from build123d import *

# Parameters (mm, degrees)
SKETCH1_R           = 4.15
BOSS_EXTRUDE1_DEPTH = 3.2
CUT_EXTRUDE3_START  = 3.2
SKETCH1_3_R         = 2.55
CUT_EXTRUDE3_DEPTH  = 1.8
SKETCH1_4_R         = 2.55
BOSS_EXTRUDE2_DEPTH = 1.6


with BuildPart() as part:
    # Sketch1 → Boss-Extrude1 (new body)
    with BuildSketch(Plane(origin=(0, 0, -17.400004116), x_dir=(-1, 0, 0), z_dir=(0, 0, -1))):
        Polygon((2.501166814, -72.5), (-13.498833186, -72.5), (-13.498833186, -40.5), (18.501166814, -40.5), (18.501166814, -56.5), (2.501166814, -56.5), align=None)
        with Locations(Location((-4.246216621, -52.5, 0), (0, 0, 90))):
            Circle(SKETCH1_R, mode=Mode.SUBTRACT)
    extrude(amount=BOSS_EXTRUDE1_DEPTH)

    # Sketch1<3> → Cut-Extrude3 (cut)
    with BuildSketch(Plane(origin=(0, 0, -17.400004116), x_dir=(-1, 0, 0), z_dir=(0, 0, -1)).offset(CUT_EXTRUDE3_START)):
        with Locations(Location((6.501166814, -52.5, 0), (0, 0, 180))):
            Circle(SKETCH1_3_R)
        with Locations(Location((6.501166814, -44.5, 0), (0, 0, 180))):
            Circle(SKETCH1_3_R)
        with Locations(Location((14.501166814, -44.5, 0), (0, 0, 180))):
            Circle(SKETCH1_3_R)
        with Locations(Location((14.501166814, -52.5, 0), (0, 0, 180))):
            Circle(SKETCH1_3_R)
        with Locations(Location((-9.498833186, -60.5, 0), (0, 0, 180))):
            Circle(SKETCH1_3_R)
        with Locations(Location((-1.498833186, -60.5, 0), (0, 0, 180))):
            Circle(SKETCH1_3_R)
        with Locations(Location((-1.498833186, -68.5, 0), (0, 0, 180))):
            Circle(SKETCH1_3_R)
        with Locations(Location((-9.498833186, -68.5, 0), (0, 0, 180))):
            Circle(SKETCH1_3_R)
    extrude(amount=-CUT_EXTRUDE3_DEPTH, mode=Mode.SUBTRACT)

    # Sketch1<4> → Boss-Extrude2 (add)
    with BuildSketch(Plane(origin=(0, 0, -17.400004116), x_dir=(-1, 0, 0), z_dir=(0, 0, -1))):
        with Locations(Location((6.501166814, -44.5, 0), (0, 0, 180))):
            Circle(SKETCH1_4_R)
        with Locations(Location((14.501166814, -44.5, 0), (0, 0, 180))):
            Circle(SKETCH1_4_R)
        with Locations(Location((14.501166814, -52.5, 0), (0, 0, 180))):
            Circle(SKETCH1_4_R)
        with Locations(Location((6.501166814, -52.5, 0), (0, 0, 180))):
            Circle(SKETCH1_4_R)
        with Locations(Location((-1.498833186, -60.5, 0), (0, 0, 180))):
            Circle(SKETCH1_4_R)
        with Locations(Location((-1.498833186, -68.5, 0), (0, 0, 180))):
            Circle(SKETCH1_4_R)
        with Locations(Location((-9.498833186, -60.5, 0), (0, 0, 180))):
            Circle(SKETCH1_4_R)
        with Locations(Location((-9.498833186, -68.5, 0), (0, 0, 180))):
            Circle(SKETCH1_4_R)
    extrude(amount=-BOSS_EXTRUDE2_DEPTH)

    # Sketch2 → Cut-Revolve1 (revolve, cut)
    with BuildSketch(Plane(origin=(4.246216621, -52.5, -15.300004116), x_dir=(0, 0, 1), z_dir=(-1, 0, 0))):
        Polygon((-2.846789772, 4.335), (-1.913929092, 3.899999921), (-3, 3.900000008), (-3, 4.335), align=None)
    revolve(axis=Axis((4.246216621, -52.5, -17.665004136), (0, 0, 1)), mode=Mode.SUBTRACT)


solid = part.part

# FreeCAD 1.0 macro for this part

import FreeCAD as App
import Part
import Sketcher
from FreeCAD import Vector
Q = App.Units.Quantity


def add_polygon(sketch, points):
    """Adds a closed chain of lines whose ends are joined by coincident constraints."""
    first, n = sketch.GeometryCount, len(points)
    for a, b in zip(points, points[1:] + points[:1]):
        sketch.addGeometry(Part.LineSegment(App.Vector(*a, 0), App.Vector(*b, 0)), False)
    for i in range(n):
        sketch.addConstraint(Sketcher.Constraint("Coincident", first + i, 2, first + (i + 1) % n, 1))

doc = App.newDocument("Part")
body = doc.addObject("PartDesign::Body", "Body")

# Sketch on XY plane
sketch1 = body.newObject("Sketcher::SketchObject", "Sketch")
sketch1.AttachmentSupport = (doc.getObject("XY_Plane"), [""])
sketch1.MapMode = "FlatFace"
sketch1.AttachmentOffset = App.Placement(Vector(0, 0, -17.400004), App.Rotation())
add_polygon(sketch1, [(13.5, -72.5), (-2.5, -72.5), (-2.5, -56.5), (-18.5, -56.5), (-18.5, -40.5), (13.5, -40.5)])  # lines 0-5
sketch1.addGeometry(Part.Circle(Vector(4.2, -52.5, 0), Vector(0, 0, 1), 4.2), False)  # 6
sketch1.addConstraint(Sketcher.Constraint("Horizontal", 0))
sketch1.addConstraint(Sketcher.Constraint("Vertical", 1))
sketch1.addConstraint(Sketcher.Constraint("Horizontal", 2))
sketch1.addConstraint(Sketcher.Constraint("Vertical", 3))
sketch1.addConstraint(Sketcher.Constraint("Horizontal", 4))
sketch1.addConstraint(Sketcher.Constraint("Vertical", 5))
sketch1.addConstraint(Sketcher.Constraint("Equal", 0, 2))
sketch1.addConstraint(Sketcher.Constraint("Equal", 2, 1))
sketch1.addConstraint(Sketcher.Constraint("Equal", 1, 3))
sketch1.addConstraint(Sketcher.Constraint("Diameter", 6, 8.3))
sketch1.addConstraint(Sketcher.Constraint("DistanceX", 0, 2, 0, 1, 16.0))
sketch1.addConstraint(Sketcher.Constraint("DistanceY", 0, 2, 6, 3, 20.0))
sketch1.addConstraint(Sketcher.Constraint("DistanceY", 6, 3, -1, 1, 52.5))
sketch1.addConstraint(Sketcher.Constraint("DistanceX", -1, 1, 6, 3, 4.246217))
sketch1.addConstraint(Sketcher.Constraint("DistanceX", 0, 2, -1, 1, 2.501167))
pad1 = body.newObject("PartDesign::Pad", "Pad")
pad1.Profile = sketch1
pad1.Length = 3.2
pad1.Reversed = True

# Sketch on XY plane
sketch2 = body.newObject("Sketcher::SketchObject", "Sketch001")
sketch2.AttachmentSupport = (doc.getObject("XY_Plane"), [""])
sketch2.MapMode = "FlatFace"
sketch2.AttachmentOffset = App.Placement(Vector(0, 0, -20.600004), App.Rotation())
sketch2.addGeometry(Part.Circle(Vector(-6.5, -52.5, 0), Vector(0, 0, 1), 2.5), False)
sketch2.addGeometry(Part.Circle(Vector(-6.5, -44.5, 0), Vector(0, 0, 1), 2.5), False)
sketch2.addGeometry(Part.Circle(Vector(-14.5, -44.5, 0), Vector(0, 0, 1), 2.5), False)
sketch2.addGeometry(Part.Circle(Vector(-14.5, -52.5, 0), Vector(0, 0, 1), 2.5), False)
sketch2.addGeometry(Part.Circle(Vector(9.5, -60.5, 0), Vector(0, 0, 1), 2.5), False)
sketch2.addGeometry(Part.Circle(Vector(1.5, -60.5, 0), Vector(0, 0, 1), 2.5), False)
sketch2.addGeometry(Part.Circle(Vector(1.5, -68.5, 0), Vector(0, 0, 1), 2.5), False)
sketch2.addGeometry(Part.Circle(Vector(9.5, -68.5, 0), Vector(0, 0, 1), 2.5), False)
sketch2.addConstraint(Sketcher.Constraint("Equal", 0, 1))
sketch2.addConstraint(Sketcher.Constraint("Equal", 1, 2))
sketch2.addConstraint(Sketcher.Constraint("Equal", 2, 3))
sketch2.addConstraint(Sketcher.Constraint("Equal", 3, 4))
sketch2.addConstraint(Sketcher.Constraint("Equal", 4, 5))
sketch2.addConstraint(Sketcher.Constraint("Equal", 5, 6))
sketch2.addConstraint(Sketcher.Constraint("Equal", 6, 7))
sketch2.addConstraint(Sketcher.Constraint("Horizontal", 1, 3, 2, 3))
sketch2.addConstraint(Sketcher.Constraint("Horizontal", 0, 3, 3, 3))
sketch2.addConstraint(Sketcher.Constraint("Horizontal", 4, 3, 5, 3))
sketch2.addConstraint(Sketcher.Constraint("Horizontal", 6, 3, 7, 3))
sketch2.addConstraint(Sketcher.Constraint("Vertical", 0, 3, 1, 3))
sketch2.addConstraint(Sketcher.Constraint("Vertical", 2, 3, 3, 3))
sketch2.addConstraint(Sketcher.Constraint("Vertical", 5, 3, 6, 3))
sketch2.addConstraint(Sketcher.Constraint("Vertical", 4, 3, 7, 3))
sketch2.addConstraint(Sketcher.Constraint("Diameter", 0, 5.1))
sketch2.addConstraint(Sketcher.Constraint("DistanceY", 0, 3, 1, 3, 8.0))
sketch2.addConstraint(Sketcher.Constraint("DistanceX", 2, 3, 1, 3, 8.0))
sketch2.addConstraint(Sketcher.Constraint("DistanceX", 0, 3, 4, 3, 16.0))
sketch2.addConstraint(Sketcher.Constraint("DistanceY", 4, 3, 0, 3, 8.0))
sketch2.addConstraint(Sketcher.Constraint("DistanceX", 5, 3, 4, 3, 8.0))
sketch2.addConstraint(Sketcher.Constraint("DistanceY", 6, 3, 5, 3, 8.0))
sketch2.addConstraint(Sketcher.Constraint("DistanceY", 0, 3, -1, 1, 52.5))
sketch2.addConstraint(Sketcher.Constraint("DistanceX", 0, 3, -1, 1, 6.501167))
pocket1 = body.newObject("PartDesign::Pocket", "Pocket")
pocket1.Profile = sketch2
pocket1.Length = 1.8
pocket1.Reversed = True

# Sketch on XY plane
sketch3 = body.newObject("Sketcher::SketchObject", "Sketch002")
sketch3.AttachmentSupport = (doc.getObject("XY_Plane"), [""])
sketch3.MapMode = "FlatFace"
sketch3.AttachmentOffset = App.Placement(Vector(0, 0, -17.400004), App.Rotation())
sketch3.addGeometry(Part.Circle(Vector(-6.5, -44.5, 0), Vector(0, 0, 1), 2.5), False)
sketch3.addGeometry(Part.Circle(Vector(-14.5, -44.5, 0), Vector(0, 0, 1), 2.5), False)
sketch3.addGeometry(Part.Circle(Vector(-14.5, -52.5, 0), Vector(0, 0, 1), 2.5), False)
sketch3.addGeometry(Part.Circle(Vector(-6.5, -52.5, 0), Vector(0, 0, 1), 2.5), False)
sketch3.addGeometry(Part.Circle(Vector(1.5, -60.5, 0), Vector(0, 0, 1), 2.5), False)
sketch3.addGeometry(Part.Circle(Vector(1.5, -68.5, 0), Vector(0, 0, 1), 2.5), False)
sketch3.addGeometry(Part.Circle(Vector(9.5, -60.5, 0), Vector(0, 0, 1), 2.5), False)
sketch3.addGeometry(Part.Circle(Vector(9.5, -68.5, 0), Vector(0, 0, 1), 2.5), False)
sketch3.addConstraint(Sketcher.Constraint("Equal", 0, 1))
sketch3.addConstraint(Sketcher.Constraint("Equal", 1, 2))
sketch3.addConstraint(Sketcher.Constraint("Equal", 2, 3))
sketch3.addConstraint(Sketcher.Constraint("Equal", 3, 4))
sketch3.addConstraint(Sketcher.Constraint("Equal", 4, 5))
sketch3.addConstraint(Sketcher.Constraint("Equal", 5, 6))
sketch3.addConstraint(Sketcher.Constraint("Equal", 6, 7))
sketch3.addConstraint(Sketcher.Constraint("Horizontal", 0, 3, 1, 3))
sketch3.addConstraint(Sketcher.Constraint("Horizontal", 2, 3, 3, 3))
sketch3.addConstraint(Sketcher.Constraint("Horizontal", 4, 3, 6, 3))
sketch3.addConstraint(Sketcher.Constraint("Horizontal", 5, 3, 7, 3))
sketch3.addConstraint(Sketcher.Constraint("Vertical", 1, 3, 2, 3))
sketch3.addConstraint(Sketcher.Constraint("Vertical", 0, 3, 3, 3))
sketch3.addConstraint(Sketcher.Constraint("Vertical", 4, 3, 5, 3))
sketch3.addConstraint(Sketcher.Constraint("Vertical", 6, 3, 7, 3))
sketch3.addConstraint(Sketcher.Constraint("Diameter", 0, 5.1))
sketch3.addConstraint(Sketcher.Constraint("DistanceX", 1, 3, 0, 3, 8.0))
sketch3.addConstraint(Sketcher.Constraint("DistanceY", 2, 3, 1, 3, 8.0))
sketch3.addConstraint(Sketcher.Constraint("DistanceX", 3, 3, 4, 3, 8.0))
sketch3.addConstraint(Sketcher.Constraint("DistanceY", 4, 3, 3, 3, 8.0))
sketch3.addConstraint(Sketcher.Constraint("DistanceY", 5, 3, 4, 3, 8.0))
sketch3.addConstraint(Sketcher.Constraint("DistanceX", 4, 3, 6, 3, 8.0))
sketch3.addConstraint(Sketcher.Constraint("DistanceY", 0, 3, -1, 1, 44.5))
sketch3.addConstraint(Sketcher.Constraint("DistanceX", 0, 3, -1, 1, 6.501167))
pad2 = body.newObject("PartDesign::Pad", "Pad001")
pad2.Profile = sketch3
pad2.Length = 1.6

# Sketch on YZ plane
sketch4 = body.newObject("Sketcher::SketchObject", "Sketch003")
sketch4.AttachmentSupport = (doc.getObject("YZ_Plane"), [""])
sketch4.MapMode = "FlatFace"
sketch4.AttachmentOffset = App.Placement(Vector(0, 0, 4.246217), App.Rotation())
add_polygon(sketch4, [(-48.6, -17.21), (-48.16, -18.15), (-48.16, -18.3), (-48.6, -18.3)])  # lines 0-3
sketch4.addGeometry(Part.LineSegment(Vector(-52.5, -18.3, 0), Vector(-52.5, -17.21, 0)), True)  # axis
sketch4.addConstraint(Sketcher.Constraint("Vertical", 1))
sketch4.addConstraint(Sketcher.Constraint("Horizontal", 2))
sketch4.addConstraint(Sketcher.Constraint("Vertical", 3))
sketch4.addConstraint(Sketcher.Constraint("Vertical", 4))
sketch4.addConstraint(Sketcher.Constraint("Horizontal", 2, 2, 4, 1))
sketch4.addConstraint(Sketcher.Constraint("Horizontal", 3, 2, 4, 2))
sketch4.addConstraint(Sketcher.Constraint("Angle", 0, Q("-65 deg")))
sketch4.addConstraint(Sketcher.Constraint("DistanceX", 2, 2, -1, 1, 48.6))
sketch4.addConstraint(Sketcher.Constraint("DistanceX", 4, 1, -1, 1, 52.5))
sketch4.addConstraint(Sketcher.Constraint("DistanceX", 2, 2, 2, 1, 0.435))
sketch4.addConstraint(Sketcher.Constraint("DistanceY", 1, 2, 1, 1, 0.15321))
sketch4.addConstraint(Sketcher.Constraint("DistanceY", 0, 2, -1, 1, 18.146794))
groove = body.newObject("PartDesign::Groove", "Groove")
groove.Profile = sketch4
groove.ReferenceAxis = (sketch4, ["Axis0"])
groove.Angle = 360

doc.recompute()
